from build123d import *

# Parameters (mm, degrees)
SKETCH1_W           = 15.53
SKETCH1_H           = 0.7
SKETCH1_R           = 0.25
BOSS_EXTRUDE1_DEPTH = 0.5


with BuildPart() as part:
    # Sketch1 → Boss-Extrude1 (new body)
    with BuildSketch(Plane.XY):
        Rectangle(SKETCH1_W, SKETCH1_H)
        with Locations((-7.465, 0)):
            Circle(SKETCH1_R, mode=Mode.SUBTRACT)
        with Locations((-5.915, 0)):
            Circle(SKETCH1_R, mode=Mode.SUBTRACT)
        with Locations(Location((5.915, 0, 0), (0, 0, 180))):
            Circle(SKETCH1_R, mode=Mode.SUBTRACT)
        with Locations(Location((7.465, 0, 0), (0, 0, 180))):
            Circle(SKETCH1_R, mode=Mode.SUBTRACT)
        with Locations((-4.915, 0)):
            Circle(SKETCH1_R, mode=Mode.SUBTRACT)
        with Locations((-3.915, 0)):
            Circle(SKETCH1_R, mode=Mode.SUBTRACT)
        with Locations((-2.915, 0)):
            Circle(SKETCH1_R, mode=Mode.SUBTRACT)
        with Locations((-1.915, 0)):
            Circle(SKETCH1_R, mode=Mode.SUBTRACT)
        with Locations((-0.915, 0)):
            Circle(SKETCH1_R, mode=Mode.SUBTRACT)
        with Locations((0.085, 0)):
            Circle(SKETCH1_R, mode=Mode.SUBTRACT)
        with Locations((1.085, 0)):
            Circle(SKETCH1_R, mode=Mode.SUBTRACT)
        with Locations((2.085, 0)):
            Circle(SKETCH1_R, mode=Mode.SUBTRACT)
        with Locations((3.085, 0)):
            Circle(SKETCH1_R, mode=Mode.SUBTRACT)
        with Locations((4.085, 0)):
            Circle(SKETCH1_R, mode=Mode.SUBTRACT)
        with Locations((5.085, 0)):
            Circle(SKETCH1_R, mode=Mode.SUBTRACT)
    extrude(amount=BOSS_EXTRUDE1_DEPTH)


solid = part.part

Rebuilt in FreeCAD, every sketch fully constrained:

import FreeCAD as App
import Part
import Sketcher

doc = App.newDocument("Part")
body = doc.addObject("PartDesign::Body", "Body")

# Sketch on XY plane
sketch1 = body.newObject("Sketcher::SketchObject", "Sketch")
sketch1.AttachmentSupport = (doc.getObject("XY_Plane"), [""])
sketch1.MapMode = "FlatFace"
sketch1.addGeometry([
    Part.LineSegment(App.Vector(-7.76, 0.35, 0), App.Vector(-7.76, -0.35, 0)),  # 0
    Part.LineSegment(App.Vector(-7.76, -0.35, 0), App.Vector(7.76, -0.35, 0)),  # 1
    Part.LineSegment(App.Vector(7.76, -0.35, 0), App.Vector(7.76, 0.35, 0)),  # 2
    Part.LineSegment(App.Vector(7.76, 0.35, 0), App.Vector(-7.76, 0.35, 0)),  # 3
    Part.Circle(App.Vector(-7.46, 0, 0), App.Vector(0, 0, 1), 0.25),  # 4
    Part.Circle(App.Vector(-5.92, 0, 0), App.Vector(0, 0, 1), 0.25),  # 5
    Part.Circle(App.Vector(-4.92, 0, 0), App.Vector(0, 0, 1), 0.25),  # 6
    Part.Circle(App.Vector(-3.92, 0, 0), App.Vector(0, 0, 1), 0.25),  # 7
    Part.Circle(App.Vector(-2.92, 0, 0), App.Vector(0, 0, 1), 0.25),  # 8
    Part.Circle(App.Vector(-1.92, 0, 0), App.Vector(0, 0, 1), 0.25),  # 9
    Part.Circle(App.Vector(-0.92, 0, 0), App.Vector(0, 0, 1), 0.25),  # 10
    Part.Circle(App.Vector(0.09, 0, 0), App.Vector(0, 0, 1), 0.25),  # 11
    Part.Circle(App.Vector(1.08, 0, 0), App.Vector(0, 0, 1), 0.25),  # 12
    Part.Circle(App.Vector(2.08, 0, 0), App.Vector(0, 0, 1), 0.25),  # 13
    Part.Circle(App.Vector(3.08, 0, 0), App.Vector(0, 0, 1), 0.25),  # 14
    Part.Circle(App.Vector(4.08, 0, 0), App.Vector(0, 0, 1), 0.25),  # 15
    Part.Circle(App.Vector(5.08, 0, 0), App.Vector(0, 0, 1), 0.25),  # 16
    Part.Circle(App.Vector(5.92, 0, 0), App.Vector(0, 0, 1), 0.25),  # 17
    Part.Circle(App.Vector(7.46, 0, 0), App.Vector(0, 0, 1), 0.25),  # 18
], False)
sketch1.addConstraint([
    Sketcher.Constraint("Coincident", 0, 2, 1, 1),
    Sketcher.Constraint("Coincident", 1, 2, 2, 1),
    Sketcher.Constraint("Coincident", 2, 2, 3, 1),
    Sketcher.Constraint("Coincident", 3, 2, 0, 1),
    Sketcher.Constraint("Vertical", 0),
    Sketcher.Constraint("Horizontal", 1),
    Sketcher.Constraint("Vertical", 2),
    Sketcher.Constraint("Horizontal", 3),
    Sketcher.Constraint("Equal", 4, 5),
    Sketcher.Constraint("Equal", 5, 6),
    Sketcher.Constraint("Equal", 6, 7),
    Sketcher.Constraint("Equal", 7, 8),
    Sketcher.Constraint("Equal", 8, 9),
    Sketcher.Constraint("Equal", 9, 10),
    Sketcher.Constraint("Equal", 10, 11),
    Sketcher.Constraint("Equal", 11, 12),
    Sketcher.Constraint("Equal", 12, 13),
    Sketcher.Constraint("Equal", 13, 14),
    Sketcher.Constraint("Equal", 14, 15),
    Sketcher.Constraint("Equal", 15, 16),
    Sketcher.Constraint("Equal", 16, 17),
    Sketcher.Constraint("Equal", 17, 18),
    Sketcher.Constraint("Symmetric", 5, 3, 17, 3, -1, 1),
    Sketcher.Constraint("Symmetric", 4, 3, 18, 3, -1, 1),
    Sketcher.Constraint("Symmetric", 0, 2, 2, 2, -1, 1),
    Sketcher.Constraint("PointOnObject", 4, 3, -1),
    Sketcher.Constraint("PointOnObject", 5, 3, -1),
    Sketcher.Constraint("PointOnObject", 6, 3, -1),
    Sketcher.Constraint("PointOnObject", 7, 3, -1),
    Sketcher.Constraint("PointOnObject", 8, 3, -1),
    Sketcher.Constraint("PointOnObject", 9, 3, -1),
    Sketcher.Constraint("PointOnObject", 10, 3, -1),
    Sketcher.Constraint("PointOnObject", 11, 3, -1),
    Sketcher.Constraint("PointOnObject", 12, 3, -1),
    Sketcher.Constraint("PointOnObject", 13, 3, -1),
    Sketcher.Constraint("PointOnObject", 14, 3, -1),
    Sketcher.Constraint("PointOnObject", 15, 3, -1),
    Sketcher.Constraint("PointOnObject", 16, 3, -1),
    Sketcher.Constraint("Diameter", 4, 0.5),
    Sketcher.Constraint("DistanceY", 0, 2, 0, 1, 0.7),
    Sketcher.Constraint("DistanceX", 5, 3, 6, 3, 1.0),
    Sketcher.Constraint("DistanceX", 6, 3, 7, 3, 1.0),
    Sketcher.Constraint("DistanceX", 7, 3, 8, 3, 1.0),
    Sketcher.Constraint("DistanceX", 8, 3, 9, 3, 1.0),
    Sketcher.Constraint("DistanceX", 9, 3, 10, 3, 1.0),
    Sketcher.Constraint("DistanceX", 10, 3, 11, 3, 1.0),
    Sketcher.Constraint("DistanceX", 11, 3, 12, 3, 1.0),
    Sketcher.Constraint("DistanceX", 12, 3, 13, 3, 1.0),
    Sketcher.Constraint("DistanceX", 13, 3, 14, 3, 1.0),
    Sketcher.Constraint("DistanceX", 14, 3, 15, 3, 1.0),
    Sketcher.Constraint("DistanceX", 15, 3, 16, 3, 1.0),
    Sketcher.Constraint("DistanceX", 1, 1, 1, 2, 15.53),
    Sketcher.Constraint("DistanceX", 0, 2, 4, 3, 0.3),
    Sketcher.Constraint("DistanceX", 4, 3, 5, 3, 1.55),
])
pad1 = body.newObject("PartDesign::Pad", "Pad")
pad1.Profile = sketch1
pad1.Length = 0.5

doc.recompute()
